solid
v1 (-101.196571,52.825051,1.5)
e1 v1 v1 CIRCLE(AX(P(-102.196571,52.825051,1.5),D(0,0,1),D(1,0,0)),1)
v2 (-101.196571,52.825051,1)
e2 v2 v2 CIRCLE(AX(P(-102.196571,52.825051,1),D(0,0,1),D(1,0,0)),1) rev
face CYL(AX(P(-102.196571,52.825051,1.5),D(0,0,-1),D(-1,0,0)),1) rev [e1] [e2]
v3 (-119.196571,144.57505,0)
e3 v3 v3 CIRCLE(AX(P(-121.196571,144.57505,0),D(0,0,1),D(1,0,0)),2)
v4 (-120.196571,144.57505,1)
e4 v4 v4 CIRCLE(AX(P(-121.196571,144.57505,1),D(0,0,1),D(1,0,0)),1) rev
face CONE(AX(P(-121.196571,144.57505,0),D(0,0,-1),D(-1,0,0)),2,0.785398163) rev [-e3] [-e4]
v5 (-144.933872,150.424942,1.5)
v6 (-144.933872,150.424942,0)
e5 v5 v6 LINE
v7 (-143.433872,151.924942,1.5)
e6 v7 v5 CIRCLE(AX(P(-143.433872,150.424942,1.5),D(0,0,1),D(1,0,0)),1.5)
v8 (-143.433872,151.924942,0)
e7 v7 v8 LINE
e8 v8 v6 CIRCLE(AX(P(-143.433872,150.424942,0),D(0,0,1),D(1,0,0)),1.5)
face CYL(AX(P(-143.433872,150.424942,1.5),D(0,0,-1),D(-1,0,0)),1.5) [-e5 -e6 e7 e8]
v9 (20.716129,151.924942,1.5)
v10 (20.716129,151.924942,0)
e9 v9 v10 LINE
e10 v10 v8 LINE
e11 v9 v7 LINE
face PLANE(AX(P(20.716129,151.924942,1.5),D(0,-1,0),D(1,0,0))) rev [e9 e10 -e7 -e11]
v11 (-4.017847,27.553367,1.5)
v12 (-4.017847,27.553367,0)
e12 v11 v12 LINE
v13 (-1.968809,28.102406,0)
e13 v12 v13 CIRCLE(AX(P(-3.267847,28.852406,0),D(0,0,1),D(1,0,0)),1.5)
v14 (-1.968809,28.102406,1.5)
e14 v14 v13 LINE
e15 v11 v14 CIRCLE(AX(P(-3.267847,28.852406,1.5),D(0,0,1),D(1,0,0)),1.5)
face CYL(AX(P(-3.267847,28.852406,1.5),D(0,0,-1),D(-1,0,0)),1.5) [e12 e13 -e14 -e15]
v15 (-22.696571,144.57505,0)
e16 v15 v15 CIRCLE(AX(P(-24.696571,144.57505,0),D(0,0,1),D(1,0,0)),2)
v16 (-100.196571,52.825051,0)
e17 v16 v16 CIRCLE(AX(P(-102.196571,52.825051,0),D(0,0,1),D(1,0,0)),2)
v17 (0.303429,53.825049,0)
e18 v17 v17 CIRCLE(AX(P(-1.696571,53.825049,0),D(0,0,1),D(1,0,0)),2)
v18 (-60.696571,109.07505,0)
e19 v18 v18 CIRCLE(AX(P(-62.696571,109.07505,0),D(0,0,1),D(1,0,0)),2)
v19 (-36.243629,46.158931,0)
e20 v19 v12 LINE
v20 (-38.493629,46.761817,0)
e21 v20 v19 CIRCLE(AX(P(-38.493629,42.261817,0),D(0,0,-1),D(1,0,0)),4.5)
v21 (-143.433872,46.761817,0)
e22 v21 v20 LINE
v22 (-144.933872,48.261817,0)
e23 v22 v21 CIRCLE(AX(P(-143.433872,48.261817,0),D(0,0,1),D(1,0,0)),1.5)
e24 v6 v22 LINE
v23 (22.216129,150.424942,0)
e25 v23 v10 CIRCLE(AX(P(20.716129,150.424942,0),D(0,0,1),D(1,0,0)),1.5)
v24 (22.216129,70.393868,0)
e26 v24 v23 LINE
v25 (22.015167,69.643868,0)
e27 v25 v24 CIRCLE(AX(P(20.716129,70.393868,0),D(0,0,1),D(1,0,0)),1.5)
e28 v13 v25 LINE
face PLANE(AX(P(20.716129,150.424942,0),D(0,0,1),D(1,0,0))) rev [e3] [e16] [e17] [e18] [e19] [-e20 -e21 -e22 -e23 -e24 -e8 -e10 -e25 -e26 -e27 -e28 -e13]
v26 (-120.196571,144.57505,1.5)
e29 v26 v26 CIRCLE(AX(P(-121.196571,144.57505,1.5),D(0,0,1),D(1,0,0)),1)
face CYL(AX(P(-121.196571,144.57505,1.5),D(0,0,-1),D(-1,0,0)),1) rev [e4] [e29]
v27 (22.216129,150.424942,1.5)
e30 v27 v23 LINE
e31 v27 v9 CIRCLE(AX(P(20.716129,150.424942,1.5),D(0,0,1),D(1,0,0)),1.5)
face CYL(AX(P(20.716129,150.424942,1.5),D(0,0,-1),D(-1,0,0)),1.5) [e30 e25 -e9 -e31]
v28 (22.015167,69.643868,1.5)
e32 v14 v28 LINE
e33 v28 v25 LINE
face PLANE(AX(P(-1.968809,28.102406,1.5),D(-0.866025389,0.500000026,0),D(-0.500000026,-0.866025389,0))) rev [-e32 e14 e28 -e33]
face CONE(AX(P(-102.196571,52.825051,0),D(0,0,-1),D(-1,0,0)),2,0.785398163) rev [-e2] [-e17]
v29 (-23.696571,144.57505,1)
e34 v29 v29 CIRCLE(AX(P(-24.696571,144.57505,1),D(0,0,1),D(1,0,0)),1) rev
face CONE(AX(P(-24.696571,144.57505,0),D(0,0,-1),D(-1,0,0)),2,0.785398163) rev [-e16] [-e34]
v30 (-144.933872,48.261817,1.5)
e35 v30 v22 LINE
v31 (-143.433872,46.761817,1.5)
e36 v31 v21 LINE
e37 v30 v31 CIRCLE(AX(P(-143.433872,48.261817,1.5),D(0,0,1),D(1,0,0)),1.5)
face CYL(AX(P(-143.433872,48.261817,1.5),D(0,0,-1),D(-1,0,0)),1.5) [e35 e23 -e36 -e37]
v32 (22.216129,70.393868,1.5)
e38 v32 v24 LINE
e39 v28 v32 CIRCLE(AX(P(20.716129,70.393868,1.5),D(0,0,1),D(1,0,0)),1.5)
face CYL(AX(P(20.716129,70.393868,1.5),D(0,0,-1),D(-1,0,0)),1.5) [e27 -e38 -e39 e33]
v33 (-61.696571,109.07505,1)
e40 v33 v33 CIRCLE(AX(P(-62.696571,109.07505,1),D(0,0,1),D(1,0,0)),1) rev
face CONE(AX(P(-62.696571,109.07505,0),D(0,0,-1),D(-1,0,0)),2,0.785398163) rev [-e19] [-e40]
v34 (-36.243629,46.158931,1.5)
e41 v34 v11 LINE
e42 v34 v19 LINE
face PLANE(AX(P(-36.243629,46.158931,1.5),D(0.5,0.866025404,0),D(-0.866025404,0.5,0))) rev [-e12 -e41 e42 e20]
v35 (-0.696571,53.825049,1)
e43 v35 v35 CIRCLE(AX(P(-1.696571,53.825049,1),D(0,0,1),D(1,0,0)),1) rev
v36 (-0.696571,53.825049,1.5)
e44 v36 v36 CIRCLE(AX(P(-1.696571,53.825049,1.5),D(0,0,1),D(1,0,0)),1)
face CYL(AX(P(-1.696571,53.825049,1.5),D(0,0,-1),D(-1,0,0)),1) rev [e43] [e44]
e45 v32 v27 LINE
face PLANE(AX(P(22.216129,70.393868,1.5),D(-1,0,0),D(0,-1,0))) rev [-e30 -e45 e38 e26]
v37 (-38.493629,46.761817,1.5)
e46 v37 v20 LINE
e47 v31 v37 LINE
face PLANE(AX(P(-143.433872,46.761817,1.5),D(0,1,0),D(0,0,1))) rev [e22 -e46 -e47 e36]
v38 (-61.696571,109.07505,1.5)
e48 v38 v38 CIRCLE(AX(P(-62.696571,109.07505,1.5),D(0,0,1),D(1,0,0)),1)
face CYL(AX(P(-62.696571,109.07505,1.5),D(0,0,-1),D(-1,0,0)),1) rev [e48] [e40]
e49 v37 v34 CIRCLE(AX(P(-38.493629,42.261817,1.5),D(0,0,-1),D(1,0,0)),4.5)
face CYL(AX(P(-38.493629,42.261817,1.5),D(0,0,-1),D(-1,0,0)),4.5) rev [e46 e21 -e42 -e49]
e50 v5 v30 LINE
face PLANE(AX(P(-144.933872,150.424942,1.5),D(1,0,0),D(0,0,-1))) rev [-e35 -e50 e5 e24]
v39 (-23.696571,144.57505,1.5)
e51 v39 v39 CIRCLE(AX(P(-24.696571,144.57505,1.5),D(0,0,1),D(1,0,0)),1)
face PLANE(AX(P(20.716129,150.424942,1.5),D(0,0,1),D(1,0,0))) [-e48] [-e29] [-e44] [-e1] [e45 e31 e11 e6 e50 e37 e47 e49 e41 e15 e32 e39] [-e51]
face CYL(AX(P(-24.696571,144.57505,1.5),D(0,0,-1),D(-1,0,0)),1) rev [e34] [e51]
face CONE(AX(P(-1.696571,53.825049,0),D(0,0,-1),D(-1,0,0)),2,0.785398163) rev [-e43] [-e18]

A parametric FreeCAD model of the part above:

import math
import FreeCAD as App
import Part
import Sketcher
from FreeCAD import Vector
Q = App.Units.Quantity


def edges_at(feature, points):
    """Names of the edges that pass closest to the given points."""
    edges = feature.Shape.Edges
    near = lambda p: min(range(len(edges)), key=lambda i: edges[i].distToShape(Part.Vertex(*p))[0])
    return sorted({f"Edge{near(p) + 1}" for p in points})

doc = App.newDocument("Part")
body = doc.addObject("PartDesign::Body", "Body")

sketch1 = doc.addObject("Sketcher::SketchObject", "Sketch")
body.addObject(sketch1)
sketch1.AttachmentSupport = (doc.XY_Plane, [""])
sketch1.MapMode = "FlatFace"
sketch1.addGeometry(Part.LineSegment(Vector(20.716129, 151.924942, 0), Vector(-143.433872, 151.924942, 0)), False)
sketch1.addGeometry(Part.ArcOfCircle(Part.Circle(Vector(-143.433872, 150.424942, 0), Vector(0, 0, 1), 1.5), math.radians(90), math.radians(180)), False)
sketch1.addGeometry(Part.LineSegment(Vector(-144.933872, 150.424942, 0), Vector(-144.933872, 48.261817, 0)), False)
sketch1.addGeometry(Part.ArcOfCircle(Part.Circle(Vector(-143.433872, 48.261817, 0), Vector(0, 0, 1), 1.5), math.radians(180), math.radians(270)), False)
sketch1.addGeometry(Part.LineSegment(Vector(-143.433872, 46.761817, 0), Vector(-38.493629, 46.761817, 0)), False)
sketch1.addGeometry(Part.ArcOfCircle(Part.Circle(Vector(-38.493629, 42.261817, 0), Vector(0, 0, 1), 4.5), math.radians(60), math.radians(90)), False)
sketch1.addGeometry(Part.LineSegment(Vector(-36.243629, 46.158931, 0), Vector(-4.017847, 27.553367, 0)), False)
sketch1.addGeometry(Part.ArcOfCircle(Part.Circle(Vector(-3.267847, 28.852406, 0), Vector(0, 0, 1), 1.5), math.radians(-120), math.radians(-30.000002)), False)
sketch1.addGeometry(Part.LineSegment(Vector(-1.968809, 28.102406, 0), Vector(22.015167, 69.643868, 0)), False)
sketch1.addGeometry(Part.ArcOfCircle(Part.Circle(Vector(20.716129, 70.393868, 0), Vector(0, 0, 1), 1.5), math.radians(-30.000002), math.radians(0)), False)
sketch1.addGeometry(Part.LineSegment(Vector(22.216129, 70.393868, 0), Vector(22.216129, 150.424942, 0)), False)
sketch1.addGeometry(Part.ArcOfCircle(Part.Circle(Vector(20.716129, 150.424942, 0), Vector(0, 0, 1), 1.5), math.radians(0), math.radians(90)), False)
sketch1.addGeometry(Part.Circle(Vector(-102.196571, 52.825051, 0), Vector(0, 0, 1), 1), False)
sketch1.addGeometry(Part.Circle(Vector(-1.696571, 53.825049, 0), Vector(0, 0, 1), 1), False)
sketch1.addGeometry(Part.Circle(Vector(-62.696571, 109.07505, 0), Vector(0, 0, 1), 1), False)
sketch1.addGeometry(Part.Circle(Vector(-121.196571, 144.57505, 0), Vector(0, 0, 1), 1), False)
sketch1.addGeometry(Part.Circle(Vector(-24.696571, 144.57505, 0), Vector(0, 0, 1), 1), False)
sketch1.addConstraint(Sketcher.Constraint("Tangent", 0, 2, 1, 1))
sketch1.addConstraint(Sketcher.Constraint("Tangent", 1, 2, 2, 1))
sketch1.addConstraint(Sketcher.Constraint("Tangent", 2, 2, 3, 1))
sketch1.addConstraint(Sketcher.Constraint("Tangent", 3, 2, 4, 1))
sketch1.addConstraint(Sketcher.Constraint("Tangent", 4, 2, 5, 2))
sketch1.addConstraint(Sketcher.Constraint("Tangent", 5, 1, 6, 1))
sketch1.addConstraint(Sketcher.Constraint("Tangent", 6, 2, 7, 1))
sketch1.addConstraint(Sketcher.Constraint("Tangent", 7, 2, 8, 1))
sketch1.addConstraint(Sketcher.Constraint("Tangent", 8, 2, 9, 1))
sketch1.addConstraint(Sketcher.Constraint("Tangent", 9, 2, 10, 1))
sketch1.addConstraint(Sketcher.Constraint("Tangent", 10, 2, 11, 1))
sketch1.addConstraint(Sketcher.Constraint("Tangent", 11, 2, 0, 1))
sketch1.addConstraint(Sketcher.Constraint("Horizontal", 0))
sketch1.addConstraint(Sketcher.Constraint("Vertical", 2))
sketch1.addConstraint(Sketcher.Constraint("Horizontal", 4))
sketch1.addConstraint(Sketcher.Constraint("Vertical", 10))
sketch1.addConstraint(Sketcher.Constraint("Equal", 1, 3))
sketch1.addConstraint(Sketcher.Constraint("Equal", 3, 7))
sketch1.addConstraint(Sketcher.Constraint("Equal", 7, 9))
sketch1.addConstraint(Sketcher.Constraint("Equal", 9, 11))
sketch1.addConstraint(Sketcher.Constraint("Equal", 12, 13))
sketch1.addConstraint(Sketcher.Constraint("Equal", 13, 14))
sketch1.addConstraint(Sketcher.Constraint("Equal", 14, 15))
sketch1.addConstraint(Sketcher.Constraint("Equal", 15, 16))
sketch1.addConstraint(Sketcher.Constraint("Perpendicular", 6, 8))
sketch1.addConstraint(Sketcher.Constraint("Horizontal", 15, 3, 16, 3))
sketch1.addConstraint(Sketcher.Constraint("Diameter", 12, Q("2 mm")))
sketch1.addConstraint(Sketcher.Constraint("Radius", 1, Q("1.5 mm")))
sketch1.addConstraint(Sketcher.Constraint("Radius", 5, Q("4.5 mm")))
sketch1.addConstraint(Sketcher.Constraint("Angle", 6, Q("-30 deg")))
sketch1.addConstraint(Sketcher.Constraint("DistanceX", 14, 3, 13, 3, Q("61 mm")))
sketch1.addConstraint(Sketcher.Constraint("DistanceX", 15, 3, 12, 3, Q("19 mm")))
sketch1.addConstraint(Sketcher.Constraint("DistanceX", 14, 3, 16, 3, Q("38 mm")))
sketch1.addConstraint(Sketcher.Constraint("DistanceX", 0, 2, 0, 1, Q("164.150001 mm")))
sketch1.addConstraint(Sketcher.Constraint("DistanceX", 12, 3, 13, 3, Q("100.5 mm")))
sketch1.addConstraint(Sketcher.Constraint("DistanceY", 14, 3, 15, 3, Q("35.5 mm")))
sketch1.addConstraint(Sketcher.Constraint("DistanceY", 12, 3, 14, 3, Q("56.249999 mm")))
sketch1.addConstraint(Sketcher.Constraint("DistanceY", 13, 3, 14, 3, Q("55.250001 mm")))
sketch1.addConstraint(Sketcher.Constraint("DistanceX", 3, 3, 12, 3, Q("41.237301 mm")))
sketch1.addConstraint(Sketcher.Constraint("DistanceY", 6, 2, 8, 2, Q("42.0905 mm")))
sketch1.addConstraint(Sketcher.Constraint("DistanceX", 4, 1, 4, 2, Q("104.940243 mm")))
sketch1.addConstraint(Sketcher.Constraint("DistanceY", 2, 2, 2, 1, Q("102.163125 mm")))
sketch1.addConstraint(Sketcher.Constraint("DistanceX", 1, 3, -1, 1, Q("143.433872 mm")))
sketch1.addConstraint(Sketcher.Constraint("DistanceY", -1, 1, 1, 3, Q("150.424942 mm")))
sketch1.addConstraint(Sketcher.Constraint("DistanceY", -1, 1, 12, 3, Q("52.825051 mm")))
pad1 = doc.addObject("PartDesign::Pad", "Pad")
body.addObject(pad1)
pad1.Profile = sketch1
pad1.Length = 1.5
doc.recompute()

chamfer = doc.addObject("PartDesign::Chamfer", "Chamfer")
body.addObject(chamfer)
chamfer.Base = (pad1, edges_at(pad1, [
    (-25.697, 144.575, 0),
    (-122.197, 144.575, 0),
    (-63.697, 109.075, 0),
    (-103.197, 52.825, 0),
    (-2.697, 53.825, 0),
]))
chamfer.Size = 1

doc.recompute()
